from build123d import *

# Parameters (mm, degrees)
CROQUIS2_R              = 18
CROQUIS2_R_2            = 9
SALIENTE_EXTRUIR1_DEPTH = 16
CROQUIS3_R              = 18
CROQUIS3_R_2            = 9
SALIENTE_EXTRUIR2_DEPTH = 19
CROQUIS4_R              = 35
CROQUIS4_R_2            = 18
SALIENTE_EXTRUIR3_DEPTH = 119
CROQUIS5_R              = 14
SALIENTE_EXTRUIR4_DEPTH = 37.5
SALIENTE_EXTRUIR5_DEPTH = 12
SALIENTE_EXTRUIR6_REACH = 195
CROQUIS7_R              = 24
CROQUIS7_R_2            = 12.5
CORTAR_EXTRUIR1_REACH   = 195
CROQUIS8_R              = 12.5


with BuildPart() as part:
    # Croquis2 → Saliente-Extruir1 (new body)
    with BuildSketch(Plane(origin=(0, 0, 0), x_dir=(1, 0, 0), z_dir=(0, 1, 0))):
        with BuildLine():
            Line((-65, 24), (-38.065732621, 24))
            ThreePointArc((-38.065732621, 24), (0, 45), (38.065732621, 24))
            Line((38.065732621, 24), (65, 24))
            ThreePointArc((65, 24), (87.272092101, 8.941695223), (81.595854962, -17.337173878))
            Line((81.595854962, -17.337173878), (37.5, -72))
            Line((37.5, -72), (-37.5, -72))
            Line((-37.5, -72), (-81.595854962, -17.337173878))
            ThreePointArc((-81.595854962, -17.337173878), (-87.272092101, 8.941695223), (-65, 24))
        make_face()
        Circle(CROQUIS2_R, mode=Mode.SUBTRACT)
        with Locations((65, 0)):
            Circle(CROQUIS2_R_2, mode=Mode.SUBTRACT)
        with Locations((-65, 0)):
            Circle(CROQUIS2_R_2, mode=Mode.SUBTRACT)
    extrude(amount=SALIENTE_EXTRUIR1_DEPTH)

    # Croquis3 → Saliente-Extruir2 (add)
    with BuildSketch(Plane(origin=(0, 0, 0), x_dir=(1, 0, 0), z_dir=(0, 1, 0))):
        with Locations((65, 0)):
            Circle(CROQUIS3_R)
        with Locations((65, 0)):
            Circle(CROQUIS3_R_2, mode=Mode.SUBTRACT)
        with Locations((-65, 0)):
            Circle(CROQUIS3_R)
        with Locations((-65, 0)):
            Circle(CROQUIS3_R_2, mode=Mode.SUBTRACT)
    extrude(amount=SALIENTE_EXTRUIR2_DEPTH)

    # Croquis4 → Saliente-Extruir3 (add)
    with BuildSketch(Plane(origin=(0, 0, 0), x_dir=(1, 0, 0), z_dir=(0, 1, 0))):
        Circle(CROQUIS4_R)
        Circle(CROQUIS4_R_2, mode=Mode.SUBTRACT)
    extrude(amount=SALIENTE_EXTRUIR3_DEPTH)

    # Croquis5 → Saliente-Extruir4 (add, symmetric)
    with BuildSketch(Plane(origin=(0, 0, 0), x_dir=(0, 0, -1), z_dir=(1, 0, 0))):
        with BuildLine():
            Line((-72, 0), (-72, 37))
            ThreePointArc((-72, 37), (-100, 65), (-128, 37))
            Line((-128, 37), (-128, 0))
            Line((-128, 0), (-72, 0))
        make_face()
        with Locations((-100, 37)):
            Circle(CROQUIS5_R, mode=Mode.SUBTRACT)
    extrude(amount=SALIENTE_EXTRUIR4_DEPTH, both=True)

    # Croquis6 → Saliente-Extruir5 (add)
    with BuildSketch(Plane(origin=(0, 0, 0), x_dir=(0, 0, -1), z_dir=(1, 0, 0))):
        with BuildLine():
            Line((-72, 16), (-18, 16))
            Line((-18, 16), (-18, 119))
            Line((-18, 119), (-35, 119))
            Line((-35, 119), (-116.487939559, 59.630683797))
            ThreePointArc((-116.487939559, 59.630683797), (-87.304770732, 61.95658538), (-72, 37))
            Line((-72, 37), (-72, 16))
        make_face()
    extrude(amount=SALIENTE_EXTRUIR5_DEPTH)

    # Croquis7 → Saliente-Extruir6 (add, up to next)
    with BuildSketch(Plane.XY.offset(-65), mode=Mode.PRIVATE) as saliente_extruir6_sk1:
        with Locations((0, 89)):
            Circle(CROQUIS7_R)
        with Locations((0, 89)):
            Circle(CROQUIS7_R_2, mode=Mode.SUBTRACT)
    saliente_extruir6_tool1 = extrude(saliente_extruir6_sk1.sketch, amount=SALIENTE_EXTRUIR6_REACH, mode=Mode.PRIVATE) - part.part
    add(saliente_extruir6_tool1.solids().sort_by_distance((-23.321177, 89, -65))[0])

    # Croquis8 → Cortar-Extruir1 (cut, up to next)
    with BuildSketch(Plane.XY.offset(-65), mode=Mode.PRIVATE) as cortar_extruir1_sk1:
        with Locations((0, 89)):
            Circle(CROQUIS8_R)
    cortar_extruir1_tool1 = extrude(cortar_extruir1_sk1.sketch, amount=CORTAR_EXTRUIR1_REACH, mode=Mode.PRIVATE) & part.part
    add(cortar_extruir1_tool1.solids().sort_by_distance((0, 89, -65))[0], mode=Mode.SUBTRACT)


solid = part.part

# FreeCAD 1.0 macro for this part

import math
import FreeCAD as App
import Part
import Sketcher

V = App.Vector

doc = App.newDocument("Part")
body = doc.addObject("PartDesign::Body", "Body")

sketch1 = body.newObject("Sketcher::SketchObject", "Sketch")
sketch1.AttachmentSupport = (doc.getObject("XZ_Plane"), [""])
sketch1.MapMode = "FlatFace"
sketch1.addGeometry([
    Part.LineSegment(V(-38, -24, 0), V(-65, -24, 0)),
    Part.ArcOfCircle(Part.Circle(V(-65, 0, 0), V(0, 0, 1), 24), math.radians(134), math.radians(270)),
    Part.LineSegment(V(-82, 17, 0), V(-38, 72, 0)),
    Part.LineSegment(V(-38, 72, 0), V(38, 72, 0)),
    Part.LineSegment(V(38, 72, 0), V(82, 17, 0)),
    Part.ArcOfCircle(Part.Circle(V(65, 0, 0), V(0, 0, 1), 24), math.radians(-90), math.radians(46)),
    Part.LineSegment(V(65, -24, 0), V(38, -24, 0)),
    Part.ArcOfCircle(Part.Circle(V(0, 0, 0), V(0, 0, 1), 45), math.radians(-148), math.radians(-32)),
    Part.Circle(V(65, 0, 0), V(0, 0, 1), 9),
    Part.Circle(V(0, 0, 0), V(0, 0, 1), 18),
    Part.Circle(V(-65, 0, 0), V(0, 0, 1), 9),
], False)
sketch1.addConstraint([
    Sketcher.Constraint("Tangent", 0, 2, 1, 2),
    Sketcher.Constraint("Coincident", 1, 1, 2, 1),
    Sketcher.Constraint("Coincident", 2, 2, 3, 1),
    Sketcher.Constraint("Coincident", 3, 2, 4, 1),
    Sketcher.Constraint("Coincident", 4, 2, 5, 2),
    Sketcher.Constraint("Tangent", 5, 1, 6, 1),
    Sketcher.Constraint("Coincident", 6, 2, 7, 2),
    Sketcher.Constraint("Coincident", 7, 1, 0, 1),
    Sketcher.Constraint("Horizontal", 0),
    Sketcher.Constraint("Horizontal", 3),
    Sketcher.Constraint("Horizontal", 6),
    Sketcher.Constraint("Coincident", 7, 3, -1, 1),
    Sketcher.Constraint("Coincident", 9, 3, -1, 1),
    Sketcher.Constraint("Coincident", 8, 3, 5, 3),
    Sketcher.Constraint("Coincident", 10, 3, 1, 3),
    Sketcher.Constraint("Equal", 1, 5),
    Sketcher.Constraint("Equal", 8, 10),
    Sketcher.Constraint("Symmetric", 1, 3, 5, 3, -1, 1),
    Sketcher.Constraint("Symmetric", 1, 1, 4, 2, -2),
    Sketcher.Constraint("Equal", 2, 4),
    Sketcher.Constraint("Diameter", 8, 18.0),
    Sketcher.Constraint("Diameter", 9, 36.0),
    Sketcher.Constraint("Radius", 1, 24.0),
    Sketcher.Constraint("Radius", 7, 45.0),
    Sketcher.Constraint("DistanceX", 3, 1, 3, 2, 75.0),
    Sketcher.Constraint("DistanceX", 1, 3, -1, 1, 65.0),
    Sketcher.Constraint("DistanceY", -1, 1, 2, 2, 72.0),
    Sketcher.Constraint("Distance", 2, 70.231538),
])
pad1 = body.newObject("PartDesign::Pad", "Pad")
pad1.Profile = sketch1
pad1.Length = 16
pad1.Reversed = True

sketch2 = body.newObject("Sketcher::SketchObject", "Sketch001")
sketch2.AttachmentSupport = (doc.getObject("XZ_Plane"), [""])
sketch2.MapMode = "FlatFace"
sketch2.addGeometry([
    Part.Circle(V(65, 0, 0), V(0, 0, 1), 18),
    Part.Circle(V(65, 0, 0), V(0, 0, 1), 9),
    Part.Circle(V(-65, 0, 0), V(0, 0, 1), 18),
    Part.Circle(V(-65, 0, 0), V(0, 0, 1), 9),
], False)
sketch2.addConstraint([
    Sketcher.Constraint("Coincident", 1, 3, 0, 3),
    Sketcher.Constraint("Coincident", 3, 3, 2, 3),
    Sketcher.Constraint("Equal", 0, 2),
    Sketcher.Constraint("Equal", 1, 3),
    Sketcher.Constraint("Symmetric", 0, 3, 2, 3, -1, 1),
    Sketcher.Constraint("PointOnObject", 0, 3, -1),
    Sketcher.Constraint("Diameter", 0, 36.0),
    Sketcher.Constraint("Diameter", 1, 18.0),
    Sketcher.Constraint("DistanceX", -1, 1, 0, 3, 65.0),
])
pad2 = body.newObject("PartDesign::Pad", "Pad001")
pad2.Profile = sketch2
pad2.Length = 19
pad2.Reversed = True

sketch3 = body.newObject("Sketcher::SketchObject", "Sketch002")
sketch3.AttachmentSupport = (doc.getObject("XZ_Plane"), [""])
sketch3.MapMode = "FlatFace"
sketch3.addGeometry([
    Part.Circle(V(0, 0, 0), V(0, 0, 1), 35),
    Part.Circle(V(0, 0, 0), V(0, 0, 1), 18),
], False)
sketch3.addConstraint([
    Sketcher.Constraint("Coincident", 0, 3, -1, 1),
    Sketcher.Constraint("Coincident", 1, 3, -1, 1),
    Sketcher.Constraint("Diameter", 0, 70.0),
    Sketcher.Constraint("Diameter", 1, 36.0),
])
pad3 = body.newObject("PartDesign::Pad", "Pad002")
pad3.Profile = sketch3
pad3.Length = 119
pad3.Reversed = True

sketch4 = body.newObject("Sketcher::SketchObject", "Sketch003")
sketch4.AttachmentSupport = (doc.getObject("YZ_Plane"), [""])
sketch4.MapMode = "FlatFace"
sketch4.addGeometry([
    Part.LineSegment(V(0, 72, 0), V(37, 72, 0)),
    Part.ArcOfCircle(Part.Circle(V(37, 100, 0), V(0, 0, 1), 28), math.radians(-90), math.radians(90)),
    Part.LineSegment(V(37, 128, 0), V(0, 128, 0)),
    Part.LineSegment(V(0, 128, 0), V(0, 72, 0)),
    Part.Circle(V(37, 100, 0), V(0, 0, 1), 14),
], False)
sketch4.addConstraint([
    Sketcher.Constraint("Tangent", 0, 2, 1, 1),
    Sketcher.Constraint("Tangent", 1, 2, 2, 1),
    Sketcher.Constraint("Coincident", 2, 2, 3, 1),
    Sketcher.Constraint("Coincident", 3, 2, 0, 1),
    Sketcher.Constraint("Horizontal", 0),
    Sketcher.Constraint("Horizontal", 2),
    Sketcher.Constraint("Vertical", 3),
    Sketcher.Constraint("Coincident", 4, 3, 1, 3),
    Sketcher.Constraint("PointOnObject", 2, 2, -2),
    Sketcher.Constraint("Diameter", 4, 28.0),
    Sketcher.Constraint("Radius", 1, 28.0),
    Sketcher.Constraint("DistanceX", 0, 1, 0, 2, 37.0),
    Sketcher.Constraint("DistanceY", -1, 1, 1, 3, 100.0),
])
pad4 = body.newObject("PartDesign::Pad", "Pad003")
pad4.Profile = sketch4
pad4.Length = 75
pad4.Midplane = True

sketch5 = body.newObject("Sketcher::SketchObject", "Sketch004")
sketch5.AttachmentSupport = (doc.getObject("YZ_Plane"), [""])
sketch5.MapMode = "FlatFace"
sketch5.addGeometry([
    Part.LineSegment(V(16, 72, 0), V(16, 18, 0)),
    Part.LineSegment(V(16, 18, 0), V(119, 18, 0)),
    Part.LineSegment(V(119, 18, 0), V(119, 35, 0)),
    Part.LineSegment(V(119, 35, 0), V(60, 116, 0)),
    Part.ArcOfCircle(Part.Circle(V(37, 100, 0), V(0, 0, 1), 28), math.radians(-90), math.radians(36)),
    Part.LineSegment(V(37, 72, 0), V(16, 72, 0)),
], False)
sketch5.addConstraint([
    Sketcher.Constraint("Coincident", 0, 2, 1, 1),
    Sketcher.Constraint("Coincident", 1, 2, 2, 1),
    Sketcher.Constraint("Coincident", 2, 2, 3, 1),
    Sketcher.Constraint("Tangent", 3, 2, 4, 2),
    Sketcher.Constraint("Tangent", 4, 1, 5, 1),
    Sketcher.Constraint("Coincident", 5, 2, 0, 1),
    Sketcher.Constraint("Vertical", 0),
    Sketcher.Constraint("Horizontal", 1),
    Sketcher.Constraint("Vertical", 2),
    Sketcher.Constraint("Horizontal", 5),
    Sketcher.Constraint("Radius", 4, 28.0),
    Sketcher.Constraint("DistanceX", 1, 1, 1, 2, 103.0),
    Sketcher.Constraint("DistanceX", 5, 2, 5, 1, 21.0),
    Sketcher.Constraint("DistanceY", 0, 2, 0, 1, 54.0),
    Sketcher.Constraint("DistanceY", 2, 1, 2, 2, 17.0),
    Sketcher.Constraint("DistanceX", -1, 1, 4, 3, 37.0),
    Sketcher.Constraint("DistanceY", -1, 1, 4, 3, 100.0),
])
pad5 = body.newObject("PartDesign::Pad", "Pad004")
pad5.Profile = sketch5
pad5.Length = 12

sketch6 = body.newObject("Sketcher::SketchObject", "Sketch005")
sketch6.AttachmentSupport = (doc.getObject("XY_Plane"), [""])
sketch6.MapMode = "FlatFace"
sketch6.AttachmentOffset = App.Placement(V(0, 0, -65), App.Rotation())
sketch6.addGeometry([
    Part.Circle(V(0, 89, 0), V(0, 0, 1), 24),
    Part.Circle(V(0, 89, 0), V(0, 0, 1), 12),
], False)
sketch6.addConstraint([
    Sketcher.Constraint("Coincident", 1, 3, 0, 3),
    Sketcher.Constraint("PointOnObject", 0, 3, -2),
    Sketcher.Constraint("Diameter", 0, 48.0),
    Sketcher.Constraint("Diameter", 1, 25.0),
    Sketcher.Constraint("DistanceY", -1, 1, 0, 3, 89.0),
])
pad6 = body.newObject("PartDesign::Pad", "Pad005")
pad6.Profile = sketch6
pad6.Type = "UpToFirst"

sketch7 = body.newObject("Sketcher::SketchObject", "Sketch006")
sketch7.AttachmentSupport = (doc.getObject("XY_Plane"), [""])
sketch7.MapMode = "FlatFace"
sketch7.AttachmentOffset = App.Placement(V(0, 0, -65), App.Rotation())
sketch7.addGeometry(Part.Circle(V(0, 89, 0), V(0, 0, 1), 12), False)
sketch7.addConstraint([
    Sketcher.Constraint("PointOnObject", 0, 3, -2),
    Sketcher.Constraint("Diameter", 0, 25.0),
    Sketcher.Constraint("DistanceY", -1, 1, 0, 3, 89.0),
])
pocket1 = body.newObject("PartDesign::Pocket", "Pocket")
pocket1.Profile = sketch7
pocket1.Length = 52.048166
pocket1.Reversed = True

doc.recompute()
